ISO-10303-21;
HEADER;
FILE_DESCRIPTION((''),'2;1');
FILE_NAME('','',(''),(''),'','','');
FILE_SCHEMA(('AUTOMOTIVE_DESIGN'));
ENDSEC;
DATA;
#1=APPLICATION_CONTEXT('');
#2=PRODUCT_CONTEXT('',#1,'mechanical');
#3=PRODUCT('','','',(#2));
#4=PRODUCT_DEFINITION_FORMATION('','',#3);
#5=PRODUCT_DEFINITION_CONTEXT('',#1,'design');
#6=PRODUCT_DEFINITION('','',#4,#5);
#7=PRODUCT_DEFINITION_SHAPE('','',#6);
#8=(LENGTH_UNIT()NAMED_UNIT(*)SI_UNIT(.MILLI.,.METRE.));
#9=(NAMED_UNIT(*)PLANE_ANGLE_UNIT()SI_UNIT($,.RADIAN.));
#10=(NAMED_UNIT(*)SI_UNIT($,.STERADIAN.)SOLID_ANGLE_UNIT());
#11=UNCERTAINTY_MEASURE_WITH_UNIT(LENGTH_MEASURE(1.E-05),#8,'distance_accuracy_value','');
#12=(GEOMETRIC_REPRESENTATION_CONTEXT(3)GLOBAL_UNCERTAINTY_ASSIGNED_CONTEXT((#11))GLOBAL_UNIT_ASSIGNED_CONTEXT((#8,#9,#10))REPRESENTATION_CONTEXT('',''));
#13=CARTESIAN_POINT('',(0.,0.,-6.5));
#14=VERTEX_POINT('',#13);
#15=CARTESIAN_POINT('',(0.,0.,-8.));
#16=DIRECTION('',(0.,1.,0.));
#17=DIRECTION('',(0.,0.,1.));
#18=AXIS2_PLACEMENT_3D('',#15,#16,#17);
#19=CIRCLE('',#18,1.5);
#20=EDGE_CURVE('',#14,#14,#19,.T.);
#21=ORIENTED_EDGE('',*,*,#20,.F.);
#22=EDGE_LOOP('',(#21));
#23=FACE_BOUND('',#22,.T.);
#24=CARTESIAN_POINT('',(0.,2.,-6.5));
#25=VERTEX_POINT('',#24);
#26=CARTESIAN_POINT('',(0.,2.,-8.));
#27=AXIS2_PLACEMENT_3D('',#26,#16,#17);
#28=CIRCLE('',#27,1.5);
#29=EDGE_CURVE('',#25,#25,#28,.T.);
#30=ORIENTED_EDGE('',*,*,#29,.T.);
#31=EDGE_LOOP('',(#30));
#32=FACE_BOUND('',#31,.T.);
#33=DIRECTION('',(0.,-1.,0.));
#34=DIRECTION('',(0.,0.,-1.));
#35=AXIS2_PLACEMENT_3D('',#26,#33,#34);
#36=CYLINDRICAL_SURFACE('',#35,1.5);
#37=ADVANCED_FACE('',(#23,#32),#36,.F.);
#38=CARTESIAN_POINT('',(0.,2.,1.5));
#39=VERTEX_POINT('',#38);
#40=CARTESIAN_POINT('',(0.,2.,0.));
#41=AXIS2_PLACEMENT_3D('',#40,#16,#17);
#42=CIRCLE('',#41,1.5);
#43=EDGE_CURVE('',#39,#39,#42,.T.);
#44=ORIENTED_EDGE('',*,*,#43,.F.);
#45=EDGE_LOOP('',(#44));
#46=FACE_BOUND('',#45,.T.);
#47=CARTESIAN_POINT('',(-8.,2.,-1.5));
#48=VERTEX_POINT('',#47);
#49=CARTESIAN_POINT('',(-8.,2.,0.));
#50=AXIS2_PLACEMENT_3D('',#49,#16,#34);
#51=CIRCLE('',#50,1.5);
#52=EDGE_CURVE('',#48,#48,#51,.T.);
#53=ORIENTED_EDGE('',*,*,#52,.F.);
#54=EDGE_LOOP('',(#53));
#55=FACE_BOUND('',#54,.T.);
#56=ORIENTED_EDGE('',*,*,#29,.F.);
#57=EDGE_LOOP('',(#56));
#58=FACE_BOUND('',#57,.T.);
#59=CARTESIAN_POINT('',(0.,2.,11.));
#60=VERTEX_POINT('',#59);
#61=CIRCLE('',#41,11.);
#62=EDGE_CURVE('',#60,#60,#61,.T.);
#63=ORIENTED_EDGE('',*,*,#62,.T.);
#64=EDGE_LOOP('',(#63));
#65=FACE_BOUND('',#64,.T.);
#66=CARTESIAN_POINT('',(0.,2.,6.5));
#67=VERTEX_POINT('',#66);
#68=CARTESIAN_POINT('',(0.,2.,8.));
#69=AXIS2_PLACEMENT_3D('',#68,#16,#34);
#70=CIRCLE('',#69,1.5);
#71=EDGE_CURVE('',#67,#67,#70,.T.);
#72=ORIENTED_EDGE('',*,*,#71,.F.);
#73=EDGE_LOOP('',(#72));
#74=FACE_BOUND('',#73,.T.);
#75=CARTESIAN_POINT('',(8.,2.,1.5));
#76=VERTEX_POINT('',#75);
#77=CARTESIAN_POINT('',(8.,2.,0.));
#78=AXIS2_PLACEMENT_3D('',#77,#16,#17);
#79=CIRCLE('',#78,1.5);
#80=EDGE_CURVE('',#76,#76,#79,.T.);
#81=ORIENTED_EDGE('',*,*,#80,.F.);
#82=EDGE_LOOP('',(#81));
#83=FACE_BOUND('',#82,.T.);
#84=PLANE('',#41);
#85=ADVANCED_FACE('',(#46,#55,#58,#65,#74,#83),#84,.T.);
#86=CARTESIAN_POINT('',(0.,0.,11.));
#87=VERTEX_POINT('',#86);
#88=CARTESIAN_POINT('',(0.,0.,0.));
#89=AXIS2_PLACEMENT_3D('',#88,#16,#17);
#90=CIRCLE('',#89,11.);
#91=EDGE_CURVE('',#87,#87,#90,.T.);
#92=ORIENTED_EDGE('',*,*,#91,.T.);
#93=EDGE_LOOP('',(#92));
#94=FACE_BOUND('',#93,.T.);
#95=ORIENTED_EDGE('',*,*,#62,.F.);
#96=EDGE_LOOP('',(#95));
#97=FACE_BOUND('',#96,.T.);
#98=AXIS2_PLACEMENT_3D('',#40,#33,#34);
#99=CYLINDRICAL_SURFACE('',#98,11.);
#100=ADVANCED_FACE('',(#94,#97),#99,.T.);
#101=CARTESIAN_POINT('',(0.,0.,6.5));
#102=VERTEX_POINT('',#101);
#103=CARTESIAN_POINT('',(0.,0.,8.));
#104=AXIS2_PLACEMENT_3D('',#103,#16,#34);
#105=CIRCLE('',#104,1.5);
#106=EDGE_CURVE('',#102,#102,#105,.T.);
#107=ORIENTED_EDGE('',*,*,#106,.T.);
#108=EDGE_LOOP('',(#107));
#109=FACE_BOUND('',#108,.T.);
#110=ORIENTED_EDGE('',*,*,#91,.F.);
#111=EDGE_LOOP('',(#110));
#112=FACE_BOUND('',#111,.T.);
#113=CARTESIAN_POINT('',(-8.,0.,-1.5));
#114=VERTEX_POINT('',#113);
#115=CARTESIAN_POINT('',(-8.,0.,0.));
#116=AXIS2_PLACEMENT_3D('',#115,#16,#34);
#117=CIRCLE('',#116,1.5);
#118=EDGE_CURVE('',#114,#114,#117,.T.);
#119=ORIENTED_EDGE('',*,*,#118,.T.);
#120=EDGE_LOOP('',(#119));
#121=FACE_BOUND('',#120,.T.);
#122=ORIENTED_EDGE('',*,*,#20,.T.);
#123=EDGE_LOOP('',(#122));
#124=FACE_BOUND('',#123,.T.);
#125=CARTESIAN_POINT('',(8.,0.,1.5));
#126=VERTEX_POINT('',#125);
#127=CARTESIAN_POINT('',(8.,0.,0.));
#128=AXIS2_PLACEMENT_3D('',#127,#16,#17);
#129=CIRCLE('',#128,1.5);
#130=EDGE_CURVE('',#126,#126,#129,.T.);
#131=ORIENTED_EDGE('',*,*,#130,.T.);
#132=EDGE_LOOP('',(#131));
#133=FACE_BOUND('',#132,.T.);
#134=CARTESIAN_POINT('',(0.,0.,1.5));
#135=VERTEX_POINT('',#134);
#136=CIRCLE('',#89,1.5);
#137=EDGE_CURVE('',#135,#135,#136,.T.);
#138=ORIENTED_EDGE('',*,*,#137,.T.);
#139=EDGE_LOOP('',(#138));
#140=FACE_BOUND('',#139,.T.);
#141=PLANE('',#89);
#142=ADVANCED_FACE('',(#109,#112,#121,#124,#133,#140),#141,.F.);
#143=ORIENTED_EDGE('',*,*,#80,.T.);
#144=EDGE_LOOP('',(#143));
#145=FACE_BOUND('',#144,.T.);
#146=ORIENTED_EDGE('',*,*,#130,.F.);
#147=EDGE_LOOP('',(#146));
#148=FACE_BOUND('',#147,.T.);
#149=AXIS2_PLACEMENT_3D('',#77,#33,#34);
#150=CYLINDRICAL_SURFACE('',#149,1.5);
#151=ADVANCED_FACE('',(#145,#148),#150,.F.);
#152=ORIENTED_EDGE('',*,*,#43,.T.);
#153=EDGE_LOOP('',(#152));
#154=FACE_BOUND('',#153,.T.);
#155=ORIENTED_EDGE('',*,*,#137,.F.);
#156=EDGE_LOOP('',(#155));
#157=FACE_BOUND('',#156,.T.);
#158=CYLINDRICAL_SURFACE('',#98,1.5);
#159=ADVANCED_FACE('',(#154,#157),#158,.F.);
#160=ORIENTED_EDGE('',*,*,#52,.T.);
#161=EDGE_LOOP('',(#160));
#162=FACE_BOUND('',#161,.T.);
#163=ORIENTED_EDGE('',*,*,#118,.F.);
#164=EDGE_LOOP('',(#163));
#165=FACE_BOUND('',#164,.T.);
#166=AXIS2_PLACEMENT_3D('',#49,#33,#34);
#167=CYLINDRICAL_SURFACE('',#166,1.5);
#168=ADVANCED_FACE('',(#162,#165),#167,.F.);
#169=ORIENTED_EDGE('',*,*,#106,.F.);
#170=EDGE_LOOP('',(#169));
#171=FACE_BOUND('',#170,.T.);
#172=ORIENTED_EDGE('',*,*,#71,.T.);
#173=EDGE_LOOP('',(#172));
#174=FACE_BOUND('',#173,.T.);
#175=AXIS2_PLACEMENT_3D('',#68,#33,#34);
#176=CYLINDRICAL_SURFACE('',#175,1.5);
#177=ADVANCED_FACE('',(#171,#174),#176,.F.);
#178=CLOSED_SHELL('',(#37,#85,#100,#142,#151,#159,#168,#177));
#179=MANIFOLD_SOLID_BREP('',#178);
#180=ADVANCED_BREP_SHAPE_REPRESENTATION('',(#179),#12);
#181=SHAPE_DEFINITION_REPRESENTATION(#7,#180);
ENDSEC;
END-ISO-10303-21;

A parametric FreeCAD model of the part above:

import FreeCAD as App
import Part
import Sketcher
from FreeCAD import Vector
Q = App.Units.Quantity

doc = App.newDocument("Part")
body = doc.addObject("PartDesign::Body", "Body")

sketch1 = body.newObject("Sketcher::SketchObject", "Sketch")
sketch1.AttachmentSupport = (doc.getObject("XZ_Plane"), [""])
sketch1.MapMode = "FlatFace"
sketch1.addGeometry([
    Part.Circle(Vector(0, 0, 0), Vector(0, 0, 1), 11),
    Part.Circle(Vector(0, -8, 0), Vector(0, 0, 1), 1.5),
    Part.Circle(Vector(-8, 0, 0), Vector(0, 0, 1), 1.5),
    Part.Circle(Vector(8, 0, 0), Vector(0, 0, 1), 1.5),
    Part.Circle(Vector(0, 0, 0), Vector(0, 0, 1), 1.5),
    Part.Circle(Vector(0, 8, 0), Vector(0, 0, 1), 1.5),
], False)
sketch1.addConstraint([
    Sketcher.Constraint("Coincident", 0, 3, -1, 1),
    Sketcher.Constraint("Coincident", 4, 3, -1, 1),
    Sketcher.Constraint("Equal", 1, 2),
    Sketcher.Constraint("Equal", 2, 3),
    Sketcher.Constraint("Equal", 3, 4),
    Sketcher.Constraint("Equal", 4, 5),
    Sketcher.Constraint("Symmetric", 2, 3, 3, 3, -1, 1),
    Sketcher.Constraint("Symmetric", 1, 3, 5, 3, -1, 1),
    Sketcher.Constraint("PointOnObject", 1, 3, -2),
    Sketcher.Constraint("PointOnObject", 2, 3, -1),
    Sketcher.Constraint("Diameter", 0, Q("22 mm")),
    Sketcher.Constraint("Diameter", 1, Q("3 mm")),
    Sketcher.Constraint("DistanceY", 1, 3, -1, 1, Q("8 mm")),
    Sketcher.Constraint("DistanceX", 2, 3, -1, 1, Q("8 mm")),
])
pad1 = body.newObject("PartDesign::Pad", "Pad")
pad1.Profile = sketch1
pad1.Length = 2
pad1.Reversed = True

doc.recompute()
